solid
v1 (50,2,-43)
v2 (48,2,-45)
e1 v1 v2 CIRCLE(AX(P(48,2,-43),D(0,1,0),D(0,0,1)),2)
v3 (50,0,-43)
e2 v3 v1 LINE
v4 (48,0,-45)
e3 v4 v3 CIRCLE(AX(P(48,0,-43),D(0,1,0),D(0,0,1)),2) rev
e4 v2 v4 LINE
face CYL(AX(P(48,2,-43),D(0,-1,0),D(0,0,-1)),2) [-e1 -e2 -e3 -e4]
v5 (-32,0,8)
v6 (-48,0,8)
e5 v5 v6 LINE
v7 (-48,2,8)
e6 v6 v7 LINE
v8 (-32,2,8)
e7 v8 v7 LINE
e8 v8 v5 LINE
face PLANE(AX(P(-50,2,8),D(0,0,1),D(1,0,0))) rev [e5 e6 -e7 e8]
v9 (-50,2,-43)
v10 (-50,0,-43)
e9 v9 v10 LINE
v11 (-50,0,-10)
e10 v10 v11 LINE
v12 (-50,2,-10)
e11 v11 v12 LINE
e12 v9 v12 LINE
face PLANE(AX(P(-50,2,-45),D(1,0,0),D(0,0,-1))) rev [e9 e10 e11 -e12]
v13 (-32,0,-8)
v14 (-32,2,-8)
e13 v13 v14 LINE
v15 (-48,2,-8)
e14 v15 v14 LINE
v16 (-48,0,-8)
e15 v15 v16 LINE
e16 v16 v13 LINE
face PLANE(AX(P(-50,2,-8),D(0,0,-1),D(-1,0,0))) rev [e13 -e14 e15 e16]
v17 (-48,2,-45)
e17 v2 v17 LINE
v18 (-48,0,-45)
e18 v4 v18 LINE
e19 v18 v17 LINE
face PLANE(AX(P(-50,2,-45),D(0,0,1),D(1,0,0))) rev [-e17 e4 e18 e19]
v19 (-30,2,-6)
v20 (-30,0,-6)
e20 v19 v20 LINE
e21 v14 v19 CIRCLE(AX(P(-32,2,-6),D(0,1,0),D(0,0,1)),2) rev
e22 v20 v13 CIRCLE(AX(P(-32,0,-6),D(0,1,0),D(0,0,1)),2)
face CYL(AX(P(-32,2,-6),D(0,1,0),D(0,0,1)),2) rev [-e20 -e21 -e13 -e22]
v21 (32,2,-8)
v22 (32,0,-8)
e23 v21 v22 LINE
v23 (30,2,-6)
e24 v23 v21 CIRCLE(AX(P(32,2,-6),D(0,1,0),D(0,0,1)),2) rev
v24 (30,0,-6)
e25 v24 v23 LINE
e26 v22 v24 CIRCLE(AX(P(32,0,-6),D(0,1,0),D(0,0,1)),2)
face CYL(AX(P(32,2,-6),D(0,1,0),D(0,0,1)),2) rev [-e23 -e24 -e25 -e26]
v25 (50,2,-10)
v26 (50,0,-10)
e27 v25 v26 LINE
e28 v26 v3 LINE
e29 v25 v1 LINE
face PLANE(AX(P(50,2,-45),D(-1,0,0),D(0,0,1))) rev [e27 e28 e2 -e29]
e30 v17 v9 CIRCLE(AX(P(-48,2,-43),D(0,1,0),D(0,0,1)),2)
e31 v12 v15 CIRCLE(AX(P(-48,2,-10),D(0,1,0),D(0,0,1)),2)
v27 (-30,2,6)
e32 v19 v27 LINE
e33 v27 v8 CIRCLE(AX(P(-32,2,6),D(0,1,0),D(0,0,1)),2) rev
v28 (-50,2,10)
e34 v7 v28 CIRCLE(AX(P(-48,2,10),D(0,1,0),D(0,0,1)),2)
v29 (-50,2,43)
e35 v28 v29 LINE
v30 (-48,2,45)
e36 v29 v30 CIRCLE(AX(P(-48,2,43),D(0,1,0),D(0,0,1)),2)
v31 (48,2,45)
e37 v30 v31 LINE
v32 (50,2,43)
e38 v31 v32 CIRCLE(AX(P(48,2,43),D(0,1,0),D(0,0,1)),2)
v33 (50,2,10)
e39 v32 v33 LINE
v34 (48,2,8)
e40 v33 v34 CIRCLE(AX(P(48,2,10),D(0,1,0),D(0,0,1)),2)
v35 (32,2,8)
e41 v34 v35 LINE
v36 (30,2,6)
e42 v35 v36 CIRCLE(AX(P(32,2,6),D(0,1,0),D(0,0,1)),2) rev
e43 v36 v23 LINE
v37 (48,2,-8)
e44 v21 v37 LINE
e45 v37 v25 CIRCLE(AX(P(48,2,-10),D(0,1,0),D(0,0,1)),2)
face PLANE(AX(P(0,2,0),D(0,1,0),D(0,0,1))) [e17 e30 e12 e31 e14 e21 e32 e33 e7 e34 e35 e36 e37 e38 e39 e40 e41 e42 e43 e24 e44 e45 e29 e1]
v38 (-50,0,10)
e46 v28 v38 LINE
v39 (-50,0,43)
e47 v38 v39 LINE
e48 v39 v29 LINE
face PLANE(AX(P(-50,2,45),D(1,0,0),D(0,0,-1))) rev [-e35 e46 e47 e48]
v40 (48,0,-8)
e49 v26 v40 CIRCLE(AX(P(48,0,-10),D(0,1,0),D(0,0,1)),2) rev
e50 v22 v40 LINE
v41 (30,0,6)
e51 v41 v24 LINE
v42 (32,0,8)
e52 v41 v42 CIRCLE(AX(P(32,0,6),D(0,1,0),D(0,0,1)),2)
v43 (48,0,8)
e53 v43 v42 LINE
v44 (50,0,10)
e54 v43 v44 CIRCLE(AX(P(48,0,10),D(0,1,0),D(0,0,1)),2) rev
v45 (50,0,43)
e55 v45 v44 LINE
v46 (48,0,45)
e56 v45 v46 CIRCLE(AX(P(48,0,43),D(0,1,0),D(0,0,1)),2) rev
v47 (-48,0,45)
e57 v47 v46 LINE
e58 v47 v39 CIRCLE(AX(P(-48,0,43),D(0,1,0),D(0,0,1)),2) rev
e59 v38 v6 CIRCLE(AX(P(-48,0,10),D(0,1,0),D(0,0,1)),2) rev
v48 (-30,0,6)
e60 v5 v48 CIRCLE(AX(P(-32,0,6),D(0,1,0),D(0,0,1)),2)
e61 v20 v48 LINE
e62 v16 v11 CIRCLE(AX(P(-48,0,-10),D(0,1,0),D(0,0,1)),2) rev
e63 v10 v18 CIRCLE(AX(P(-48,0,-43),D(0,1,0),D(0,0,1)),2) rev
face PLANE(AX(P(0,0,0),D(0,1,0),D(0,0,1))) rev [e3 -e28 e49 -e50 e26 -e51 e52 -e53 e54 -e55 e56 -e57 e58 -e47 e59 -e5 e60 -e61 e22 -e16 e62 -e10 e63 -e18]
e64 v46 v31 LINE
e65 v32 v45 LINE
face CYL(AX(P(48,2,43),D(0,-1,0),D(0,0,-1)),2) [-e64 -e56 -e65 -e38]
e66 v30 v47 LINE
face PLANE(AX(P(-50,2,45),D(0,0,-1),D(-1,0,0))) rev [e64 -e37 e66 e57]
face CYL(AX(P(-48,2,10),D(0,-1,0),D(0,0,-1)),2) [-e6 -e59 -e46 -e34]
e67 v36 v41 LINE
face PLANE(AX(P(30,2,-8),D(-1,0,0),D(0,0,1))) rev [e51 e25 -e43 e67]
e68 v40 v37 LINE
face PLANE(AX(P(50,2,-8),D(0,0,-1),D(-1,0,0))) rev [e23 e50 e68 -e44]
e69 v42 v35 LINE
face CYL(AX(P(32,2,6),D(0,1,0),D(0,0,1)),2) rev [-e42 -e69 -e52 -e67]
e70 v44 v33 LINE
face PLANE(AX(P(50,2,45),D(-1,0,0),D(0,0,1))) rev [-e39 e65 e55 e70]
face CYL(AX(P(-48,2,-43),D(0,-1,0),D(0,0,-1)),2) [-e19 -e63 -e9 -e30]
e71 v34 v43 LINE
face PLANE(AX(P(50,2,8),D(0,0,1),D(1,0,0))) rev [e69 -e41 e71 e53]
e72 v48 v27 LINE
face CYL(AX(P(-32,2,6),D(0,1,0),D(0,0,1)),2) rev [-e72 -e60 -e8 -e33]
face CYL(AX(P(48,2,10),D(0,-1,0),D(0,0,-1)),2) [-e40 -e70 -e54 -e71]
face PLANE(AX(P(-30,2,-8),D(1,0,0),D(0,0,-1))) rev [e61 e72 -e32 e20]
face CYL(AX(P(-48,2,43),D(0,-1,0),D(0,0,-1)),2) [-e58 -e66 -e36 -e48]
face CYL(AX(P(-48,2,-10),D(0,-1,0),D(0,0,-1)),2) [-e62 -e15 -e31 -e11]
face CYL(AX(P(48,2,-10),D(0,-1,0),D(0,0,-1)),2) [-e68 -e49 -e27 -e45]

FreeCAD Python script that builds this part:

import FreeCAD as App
import Part
import Sketcher
Q = App.Units.Quantity


def edges_at(feature, points):
    """Names of the edges that pass closest to the given points."""
    edges = feature.Shape.Edges
    near = lambda p: min(range(len(edges)), key=lambda i: edges[i].distToShape(Part.Vertex(*p))[0])
    return sorted({f"Edge{near(p) + 1}" for p in points})

doc = App.newDocument("Part")
body = doc.addObject("PartDesign::Body", "Body")

# Sketch on XZ plane
sketch1 = body.newObject("Sketcher::SketchObject", "Sketch")
sketch1.AttachmentSupport = (doc.getObject("XZ_Plane"), [""])
sketch1.MapMode = "FlatFace"
sketch1.addGeometry([
    Part.LineSegment(App.Vector(50, -45, 0), App.Vector(-50, -45, 0)),  # 0
    Part.LineSegment(App.Vector(-50, -45, 0), App.Vector(-50, -8, 0)),  # 1
    Part.LineSegment(App.Vector(-50, -8, 0), App.Vector(-30, -8, 0)),  # 2
    Part.LineSegment(App.Vector(-30, -8, 0), App.Vector(-30, 8, 0)),  # 3
    Part.LineSegment(App.Vector(-30, 8, 0), App.Vector(-50, 8, 0)),  # 4
    Part.LineSegment(App.Vector(-50, 8, 0), App.Vector(-50, 45, 0)),  # 5
    Part.LineSegment(App.Vector(-50, 45, 0), App.Vector(50, 45, 0)),  # 6
    Part.LineSegment(App.Vector(50, 45, 0), App.Vector(50, 8, 0)),  # 7
    Part.LineSegment(App.Vector(50, 8, 0), App.Vector(30, 8, 0)),  # 8
    Part.LineSegment(App.Vector(30, 8, 0), App.Vector(30, -8, 0)),  # 9
    Part.LineSegment(App.Vector(30, -8, 0), App.Vector(50, -8, 0)),  # 10
    Part.LineSegment(App.Vector(50, -8, 0), App.Vector(50, -45, 0)),  # 11
], False)
sketch1.addConstraint([
    Sketcher.Constraint("Coincident", 0, 2, 1, 1),
    Sketcher.Constraint("Coincident", 1, 2, 2, 1),
    Sketcher.Constraint("Coincident", 2, 2, 3, 1),
    Sketcher.Constraint("Coincident", 3, 2, 4, 1),
    Sketcher.Constraint("Coincident", 4, 2, 5, 1),
    Sketcher.Constraint("Coincident", 5, 2, 6, 1),
    Sketcher.Constraint("Coincident", 6, 2, 7, 1),
    Sketcher.Constraint("Coincident", 7, 2, 8, 1),
    Sketcher.Constraint("Coincident", 8, 2, 9, 1),
    Sketcher.Constraint("Coincident", 9, 2, 10, 1),
    Sketcher.Constraint("Coincident", 10, 2, 11, 1),
    Sketcher.Constraint("Coincident", 11, 2, 0, 1),
    Sketcher.Constraint("Horizontal", 0),
    Sketcher.Constraint("Vertical", 1),
    Sketcher.Constraint("Horizontal", 2),
    Sketcher.Constraint("Vertical", 3),
    Sketcher.Constraint("Horizontal", 4),
    Sketcher.Constraint("Vertical", 5),
    Sketcher.Constraint("Horizontal", 6),
    Sketcher.Constraint("Vertical", 7),
    Sketcher.Constraint("Horizontal", 8),
    Sketcher.Constraint("Vertical", 9),
    Sketcher.Constraint("Horizontal", 10),
    Sketcher.Constraint("Vertical", 11),
    Sketcher.Constraint("Symmetric", 0, 2, 6, 2, -1, 1),
    Sketcher.Constraint("Symmetric", 2, 2, 8, 2, -1, 1),
    Sketcher.Constraint("Symmetric", 4, 2, 10, 2, -1, 1),
    Sketcher.Constraint("Symmetric", 4, 2, 7, 2, -2),
    Sketcher.Constraint("DistanceX", 0, 2, 0, 1, Q("100 mm")),
    Sketcher.Constraint("DistanceX", 2, 1, 2, 2, Q("20 mm")),
    Sketcher.Constraint("DistanceY", 1, 1, 1, 2, Q("37 mm")),
    Sketcher.Constraint("DistanceY", 3, 1, 3, 2, Q("16 mm")),
])
pad1 = body.newObject("PartDesign::Pad", "Pad")
pad1.Profile = sketch1
pad1.Length = 2
pad1.Reversed = True
doc.recompute()

fillet = body.newObject("PartDesign::Fillet", "Fillet")
fillet.Base = (pad1, edges_at(pad1, [
    (-50, 1, -45),
    (50, 1, -45),
    (50, 1, -8),
    (30, 1, -8),
    (30, 1, 8),
    (50, 1, 8),
    (50, 1, 45),
    (-50, 1, 45),
    (-50, 1, 8),
    (-30, 1, 8),
    (-30, 1, -8),
    (-50, 1, -8),
]))
fillet.Radius = 2

doc.recompute()
